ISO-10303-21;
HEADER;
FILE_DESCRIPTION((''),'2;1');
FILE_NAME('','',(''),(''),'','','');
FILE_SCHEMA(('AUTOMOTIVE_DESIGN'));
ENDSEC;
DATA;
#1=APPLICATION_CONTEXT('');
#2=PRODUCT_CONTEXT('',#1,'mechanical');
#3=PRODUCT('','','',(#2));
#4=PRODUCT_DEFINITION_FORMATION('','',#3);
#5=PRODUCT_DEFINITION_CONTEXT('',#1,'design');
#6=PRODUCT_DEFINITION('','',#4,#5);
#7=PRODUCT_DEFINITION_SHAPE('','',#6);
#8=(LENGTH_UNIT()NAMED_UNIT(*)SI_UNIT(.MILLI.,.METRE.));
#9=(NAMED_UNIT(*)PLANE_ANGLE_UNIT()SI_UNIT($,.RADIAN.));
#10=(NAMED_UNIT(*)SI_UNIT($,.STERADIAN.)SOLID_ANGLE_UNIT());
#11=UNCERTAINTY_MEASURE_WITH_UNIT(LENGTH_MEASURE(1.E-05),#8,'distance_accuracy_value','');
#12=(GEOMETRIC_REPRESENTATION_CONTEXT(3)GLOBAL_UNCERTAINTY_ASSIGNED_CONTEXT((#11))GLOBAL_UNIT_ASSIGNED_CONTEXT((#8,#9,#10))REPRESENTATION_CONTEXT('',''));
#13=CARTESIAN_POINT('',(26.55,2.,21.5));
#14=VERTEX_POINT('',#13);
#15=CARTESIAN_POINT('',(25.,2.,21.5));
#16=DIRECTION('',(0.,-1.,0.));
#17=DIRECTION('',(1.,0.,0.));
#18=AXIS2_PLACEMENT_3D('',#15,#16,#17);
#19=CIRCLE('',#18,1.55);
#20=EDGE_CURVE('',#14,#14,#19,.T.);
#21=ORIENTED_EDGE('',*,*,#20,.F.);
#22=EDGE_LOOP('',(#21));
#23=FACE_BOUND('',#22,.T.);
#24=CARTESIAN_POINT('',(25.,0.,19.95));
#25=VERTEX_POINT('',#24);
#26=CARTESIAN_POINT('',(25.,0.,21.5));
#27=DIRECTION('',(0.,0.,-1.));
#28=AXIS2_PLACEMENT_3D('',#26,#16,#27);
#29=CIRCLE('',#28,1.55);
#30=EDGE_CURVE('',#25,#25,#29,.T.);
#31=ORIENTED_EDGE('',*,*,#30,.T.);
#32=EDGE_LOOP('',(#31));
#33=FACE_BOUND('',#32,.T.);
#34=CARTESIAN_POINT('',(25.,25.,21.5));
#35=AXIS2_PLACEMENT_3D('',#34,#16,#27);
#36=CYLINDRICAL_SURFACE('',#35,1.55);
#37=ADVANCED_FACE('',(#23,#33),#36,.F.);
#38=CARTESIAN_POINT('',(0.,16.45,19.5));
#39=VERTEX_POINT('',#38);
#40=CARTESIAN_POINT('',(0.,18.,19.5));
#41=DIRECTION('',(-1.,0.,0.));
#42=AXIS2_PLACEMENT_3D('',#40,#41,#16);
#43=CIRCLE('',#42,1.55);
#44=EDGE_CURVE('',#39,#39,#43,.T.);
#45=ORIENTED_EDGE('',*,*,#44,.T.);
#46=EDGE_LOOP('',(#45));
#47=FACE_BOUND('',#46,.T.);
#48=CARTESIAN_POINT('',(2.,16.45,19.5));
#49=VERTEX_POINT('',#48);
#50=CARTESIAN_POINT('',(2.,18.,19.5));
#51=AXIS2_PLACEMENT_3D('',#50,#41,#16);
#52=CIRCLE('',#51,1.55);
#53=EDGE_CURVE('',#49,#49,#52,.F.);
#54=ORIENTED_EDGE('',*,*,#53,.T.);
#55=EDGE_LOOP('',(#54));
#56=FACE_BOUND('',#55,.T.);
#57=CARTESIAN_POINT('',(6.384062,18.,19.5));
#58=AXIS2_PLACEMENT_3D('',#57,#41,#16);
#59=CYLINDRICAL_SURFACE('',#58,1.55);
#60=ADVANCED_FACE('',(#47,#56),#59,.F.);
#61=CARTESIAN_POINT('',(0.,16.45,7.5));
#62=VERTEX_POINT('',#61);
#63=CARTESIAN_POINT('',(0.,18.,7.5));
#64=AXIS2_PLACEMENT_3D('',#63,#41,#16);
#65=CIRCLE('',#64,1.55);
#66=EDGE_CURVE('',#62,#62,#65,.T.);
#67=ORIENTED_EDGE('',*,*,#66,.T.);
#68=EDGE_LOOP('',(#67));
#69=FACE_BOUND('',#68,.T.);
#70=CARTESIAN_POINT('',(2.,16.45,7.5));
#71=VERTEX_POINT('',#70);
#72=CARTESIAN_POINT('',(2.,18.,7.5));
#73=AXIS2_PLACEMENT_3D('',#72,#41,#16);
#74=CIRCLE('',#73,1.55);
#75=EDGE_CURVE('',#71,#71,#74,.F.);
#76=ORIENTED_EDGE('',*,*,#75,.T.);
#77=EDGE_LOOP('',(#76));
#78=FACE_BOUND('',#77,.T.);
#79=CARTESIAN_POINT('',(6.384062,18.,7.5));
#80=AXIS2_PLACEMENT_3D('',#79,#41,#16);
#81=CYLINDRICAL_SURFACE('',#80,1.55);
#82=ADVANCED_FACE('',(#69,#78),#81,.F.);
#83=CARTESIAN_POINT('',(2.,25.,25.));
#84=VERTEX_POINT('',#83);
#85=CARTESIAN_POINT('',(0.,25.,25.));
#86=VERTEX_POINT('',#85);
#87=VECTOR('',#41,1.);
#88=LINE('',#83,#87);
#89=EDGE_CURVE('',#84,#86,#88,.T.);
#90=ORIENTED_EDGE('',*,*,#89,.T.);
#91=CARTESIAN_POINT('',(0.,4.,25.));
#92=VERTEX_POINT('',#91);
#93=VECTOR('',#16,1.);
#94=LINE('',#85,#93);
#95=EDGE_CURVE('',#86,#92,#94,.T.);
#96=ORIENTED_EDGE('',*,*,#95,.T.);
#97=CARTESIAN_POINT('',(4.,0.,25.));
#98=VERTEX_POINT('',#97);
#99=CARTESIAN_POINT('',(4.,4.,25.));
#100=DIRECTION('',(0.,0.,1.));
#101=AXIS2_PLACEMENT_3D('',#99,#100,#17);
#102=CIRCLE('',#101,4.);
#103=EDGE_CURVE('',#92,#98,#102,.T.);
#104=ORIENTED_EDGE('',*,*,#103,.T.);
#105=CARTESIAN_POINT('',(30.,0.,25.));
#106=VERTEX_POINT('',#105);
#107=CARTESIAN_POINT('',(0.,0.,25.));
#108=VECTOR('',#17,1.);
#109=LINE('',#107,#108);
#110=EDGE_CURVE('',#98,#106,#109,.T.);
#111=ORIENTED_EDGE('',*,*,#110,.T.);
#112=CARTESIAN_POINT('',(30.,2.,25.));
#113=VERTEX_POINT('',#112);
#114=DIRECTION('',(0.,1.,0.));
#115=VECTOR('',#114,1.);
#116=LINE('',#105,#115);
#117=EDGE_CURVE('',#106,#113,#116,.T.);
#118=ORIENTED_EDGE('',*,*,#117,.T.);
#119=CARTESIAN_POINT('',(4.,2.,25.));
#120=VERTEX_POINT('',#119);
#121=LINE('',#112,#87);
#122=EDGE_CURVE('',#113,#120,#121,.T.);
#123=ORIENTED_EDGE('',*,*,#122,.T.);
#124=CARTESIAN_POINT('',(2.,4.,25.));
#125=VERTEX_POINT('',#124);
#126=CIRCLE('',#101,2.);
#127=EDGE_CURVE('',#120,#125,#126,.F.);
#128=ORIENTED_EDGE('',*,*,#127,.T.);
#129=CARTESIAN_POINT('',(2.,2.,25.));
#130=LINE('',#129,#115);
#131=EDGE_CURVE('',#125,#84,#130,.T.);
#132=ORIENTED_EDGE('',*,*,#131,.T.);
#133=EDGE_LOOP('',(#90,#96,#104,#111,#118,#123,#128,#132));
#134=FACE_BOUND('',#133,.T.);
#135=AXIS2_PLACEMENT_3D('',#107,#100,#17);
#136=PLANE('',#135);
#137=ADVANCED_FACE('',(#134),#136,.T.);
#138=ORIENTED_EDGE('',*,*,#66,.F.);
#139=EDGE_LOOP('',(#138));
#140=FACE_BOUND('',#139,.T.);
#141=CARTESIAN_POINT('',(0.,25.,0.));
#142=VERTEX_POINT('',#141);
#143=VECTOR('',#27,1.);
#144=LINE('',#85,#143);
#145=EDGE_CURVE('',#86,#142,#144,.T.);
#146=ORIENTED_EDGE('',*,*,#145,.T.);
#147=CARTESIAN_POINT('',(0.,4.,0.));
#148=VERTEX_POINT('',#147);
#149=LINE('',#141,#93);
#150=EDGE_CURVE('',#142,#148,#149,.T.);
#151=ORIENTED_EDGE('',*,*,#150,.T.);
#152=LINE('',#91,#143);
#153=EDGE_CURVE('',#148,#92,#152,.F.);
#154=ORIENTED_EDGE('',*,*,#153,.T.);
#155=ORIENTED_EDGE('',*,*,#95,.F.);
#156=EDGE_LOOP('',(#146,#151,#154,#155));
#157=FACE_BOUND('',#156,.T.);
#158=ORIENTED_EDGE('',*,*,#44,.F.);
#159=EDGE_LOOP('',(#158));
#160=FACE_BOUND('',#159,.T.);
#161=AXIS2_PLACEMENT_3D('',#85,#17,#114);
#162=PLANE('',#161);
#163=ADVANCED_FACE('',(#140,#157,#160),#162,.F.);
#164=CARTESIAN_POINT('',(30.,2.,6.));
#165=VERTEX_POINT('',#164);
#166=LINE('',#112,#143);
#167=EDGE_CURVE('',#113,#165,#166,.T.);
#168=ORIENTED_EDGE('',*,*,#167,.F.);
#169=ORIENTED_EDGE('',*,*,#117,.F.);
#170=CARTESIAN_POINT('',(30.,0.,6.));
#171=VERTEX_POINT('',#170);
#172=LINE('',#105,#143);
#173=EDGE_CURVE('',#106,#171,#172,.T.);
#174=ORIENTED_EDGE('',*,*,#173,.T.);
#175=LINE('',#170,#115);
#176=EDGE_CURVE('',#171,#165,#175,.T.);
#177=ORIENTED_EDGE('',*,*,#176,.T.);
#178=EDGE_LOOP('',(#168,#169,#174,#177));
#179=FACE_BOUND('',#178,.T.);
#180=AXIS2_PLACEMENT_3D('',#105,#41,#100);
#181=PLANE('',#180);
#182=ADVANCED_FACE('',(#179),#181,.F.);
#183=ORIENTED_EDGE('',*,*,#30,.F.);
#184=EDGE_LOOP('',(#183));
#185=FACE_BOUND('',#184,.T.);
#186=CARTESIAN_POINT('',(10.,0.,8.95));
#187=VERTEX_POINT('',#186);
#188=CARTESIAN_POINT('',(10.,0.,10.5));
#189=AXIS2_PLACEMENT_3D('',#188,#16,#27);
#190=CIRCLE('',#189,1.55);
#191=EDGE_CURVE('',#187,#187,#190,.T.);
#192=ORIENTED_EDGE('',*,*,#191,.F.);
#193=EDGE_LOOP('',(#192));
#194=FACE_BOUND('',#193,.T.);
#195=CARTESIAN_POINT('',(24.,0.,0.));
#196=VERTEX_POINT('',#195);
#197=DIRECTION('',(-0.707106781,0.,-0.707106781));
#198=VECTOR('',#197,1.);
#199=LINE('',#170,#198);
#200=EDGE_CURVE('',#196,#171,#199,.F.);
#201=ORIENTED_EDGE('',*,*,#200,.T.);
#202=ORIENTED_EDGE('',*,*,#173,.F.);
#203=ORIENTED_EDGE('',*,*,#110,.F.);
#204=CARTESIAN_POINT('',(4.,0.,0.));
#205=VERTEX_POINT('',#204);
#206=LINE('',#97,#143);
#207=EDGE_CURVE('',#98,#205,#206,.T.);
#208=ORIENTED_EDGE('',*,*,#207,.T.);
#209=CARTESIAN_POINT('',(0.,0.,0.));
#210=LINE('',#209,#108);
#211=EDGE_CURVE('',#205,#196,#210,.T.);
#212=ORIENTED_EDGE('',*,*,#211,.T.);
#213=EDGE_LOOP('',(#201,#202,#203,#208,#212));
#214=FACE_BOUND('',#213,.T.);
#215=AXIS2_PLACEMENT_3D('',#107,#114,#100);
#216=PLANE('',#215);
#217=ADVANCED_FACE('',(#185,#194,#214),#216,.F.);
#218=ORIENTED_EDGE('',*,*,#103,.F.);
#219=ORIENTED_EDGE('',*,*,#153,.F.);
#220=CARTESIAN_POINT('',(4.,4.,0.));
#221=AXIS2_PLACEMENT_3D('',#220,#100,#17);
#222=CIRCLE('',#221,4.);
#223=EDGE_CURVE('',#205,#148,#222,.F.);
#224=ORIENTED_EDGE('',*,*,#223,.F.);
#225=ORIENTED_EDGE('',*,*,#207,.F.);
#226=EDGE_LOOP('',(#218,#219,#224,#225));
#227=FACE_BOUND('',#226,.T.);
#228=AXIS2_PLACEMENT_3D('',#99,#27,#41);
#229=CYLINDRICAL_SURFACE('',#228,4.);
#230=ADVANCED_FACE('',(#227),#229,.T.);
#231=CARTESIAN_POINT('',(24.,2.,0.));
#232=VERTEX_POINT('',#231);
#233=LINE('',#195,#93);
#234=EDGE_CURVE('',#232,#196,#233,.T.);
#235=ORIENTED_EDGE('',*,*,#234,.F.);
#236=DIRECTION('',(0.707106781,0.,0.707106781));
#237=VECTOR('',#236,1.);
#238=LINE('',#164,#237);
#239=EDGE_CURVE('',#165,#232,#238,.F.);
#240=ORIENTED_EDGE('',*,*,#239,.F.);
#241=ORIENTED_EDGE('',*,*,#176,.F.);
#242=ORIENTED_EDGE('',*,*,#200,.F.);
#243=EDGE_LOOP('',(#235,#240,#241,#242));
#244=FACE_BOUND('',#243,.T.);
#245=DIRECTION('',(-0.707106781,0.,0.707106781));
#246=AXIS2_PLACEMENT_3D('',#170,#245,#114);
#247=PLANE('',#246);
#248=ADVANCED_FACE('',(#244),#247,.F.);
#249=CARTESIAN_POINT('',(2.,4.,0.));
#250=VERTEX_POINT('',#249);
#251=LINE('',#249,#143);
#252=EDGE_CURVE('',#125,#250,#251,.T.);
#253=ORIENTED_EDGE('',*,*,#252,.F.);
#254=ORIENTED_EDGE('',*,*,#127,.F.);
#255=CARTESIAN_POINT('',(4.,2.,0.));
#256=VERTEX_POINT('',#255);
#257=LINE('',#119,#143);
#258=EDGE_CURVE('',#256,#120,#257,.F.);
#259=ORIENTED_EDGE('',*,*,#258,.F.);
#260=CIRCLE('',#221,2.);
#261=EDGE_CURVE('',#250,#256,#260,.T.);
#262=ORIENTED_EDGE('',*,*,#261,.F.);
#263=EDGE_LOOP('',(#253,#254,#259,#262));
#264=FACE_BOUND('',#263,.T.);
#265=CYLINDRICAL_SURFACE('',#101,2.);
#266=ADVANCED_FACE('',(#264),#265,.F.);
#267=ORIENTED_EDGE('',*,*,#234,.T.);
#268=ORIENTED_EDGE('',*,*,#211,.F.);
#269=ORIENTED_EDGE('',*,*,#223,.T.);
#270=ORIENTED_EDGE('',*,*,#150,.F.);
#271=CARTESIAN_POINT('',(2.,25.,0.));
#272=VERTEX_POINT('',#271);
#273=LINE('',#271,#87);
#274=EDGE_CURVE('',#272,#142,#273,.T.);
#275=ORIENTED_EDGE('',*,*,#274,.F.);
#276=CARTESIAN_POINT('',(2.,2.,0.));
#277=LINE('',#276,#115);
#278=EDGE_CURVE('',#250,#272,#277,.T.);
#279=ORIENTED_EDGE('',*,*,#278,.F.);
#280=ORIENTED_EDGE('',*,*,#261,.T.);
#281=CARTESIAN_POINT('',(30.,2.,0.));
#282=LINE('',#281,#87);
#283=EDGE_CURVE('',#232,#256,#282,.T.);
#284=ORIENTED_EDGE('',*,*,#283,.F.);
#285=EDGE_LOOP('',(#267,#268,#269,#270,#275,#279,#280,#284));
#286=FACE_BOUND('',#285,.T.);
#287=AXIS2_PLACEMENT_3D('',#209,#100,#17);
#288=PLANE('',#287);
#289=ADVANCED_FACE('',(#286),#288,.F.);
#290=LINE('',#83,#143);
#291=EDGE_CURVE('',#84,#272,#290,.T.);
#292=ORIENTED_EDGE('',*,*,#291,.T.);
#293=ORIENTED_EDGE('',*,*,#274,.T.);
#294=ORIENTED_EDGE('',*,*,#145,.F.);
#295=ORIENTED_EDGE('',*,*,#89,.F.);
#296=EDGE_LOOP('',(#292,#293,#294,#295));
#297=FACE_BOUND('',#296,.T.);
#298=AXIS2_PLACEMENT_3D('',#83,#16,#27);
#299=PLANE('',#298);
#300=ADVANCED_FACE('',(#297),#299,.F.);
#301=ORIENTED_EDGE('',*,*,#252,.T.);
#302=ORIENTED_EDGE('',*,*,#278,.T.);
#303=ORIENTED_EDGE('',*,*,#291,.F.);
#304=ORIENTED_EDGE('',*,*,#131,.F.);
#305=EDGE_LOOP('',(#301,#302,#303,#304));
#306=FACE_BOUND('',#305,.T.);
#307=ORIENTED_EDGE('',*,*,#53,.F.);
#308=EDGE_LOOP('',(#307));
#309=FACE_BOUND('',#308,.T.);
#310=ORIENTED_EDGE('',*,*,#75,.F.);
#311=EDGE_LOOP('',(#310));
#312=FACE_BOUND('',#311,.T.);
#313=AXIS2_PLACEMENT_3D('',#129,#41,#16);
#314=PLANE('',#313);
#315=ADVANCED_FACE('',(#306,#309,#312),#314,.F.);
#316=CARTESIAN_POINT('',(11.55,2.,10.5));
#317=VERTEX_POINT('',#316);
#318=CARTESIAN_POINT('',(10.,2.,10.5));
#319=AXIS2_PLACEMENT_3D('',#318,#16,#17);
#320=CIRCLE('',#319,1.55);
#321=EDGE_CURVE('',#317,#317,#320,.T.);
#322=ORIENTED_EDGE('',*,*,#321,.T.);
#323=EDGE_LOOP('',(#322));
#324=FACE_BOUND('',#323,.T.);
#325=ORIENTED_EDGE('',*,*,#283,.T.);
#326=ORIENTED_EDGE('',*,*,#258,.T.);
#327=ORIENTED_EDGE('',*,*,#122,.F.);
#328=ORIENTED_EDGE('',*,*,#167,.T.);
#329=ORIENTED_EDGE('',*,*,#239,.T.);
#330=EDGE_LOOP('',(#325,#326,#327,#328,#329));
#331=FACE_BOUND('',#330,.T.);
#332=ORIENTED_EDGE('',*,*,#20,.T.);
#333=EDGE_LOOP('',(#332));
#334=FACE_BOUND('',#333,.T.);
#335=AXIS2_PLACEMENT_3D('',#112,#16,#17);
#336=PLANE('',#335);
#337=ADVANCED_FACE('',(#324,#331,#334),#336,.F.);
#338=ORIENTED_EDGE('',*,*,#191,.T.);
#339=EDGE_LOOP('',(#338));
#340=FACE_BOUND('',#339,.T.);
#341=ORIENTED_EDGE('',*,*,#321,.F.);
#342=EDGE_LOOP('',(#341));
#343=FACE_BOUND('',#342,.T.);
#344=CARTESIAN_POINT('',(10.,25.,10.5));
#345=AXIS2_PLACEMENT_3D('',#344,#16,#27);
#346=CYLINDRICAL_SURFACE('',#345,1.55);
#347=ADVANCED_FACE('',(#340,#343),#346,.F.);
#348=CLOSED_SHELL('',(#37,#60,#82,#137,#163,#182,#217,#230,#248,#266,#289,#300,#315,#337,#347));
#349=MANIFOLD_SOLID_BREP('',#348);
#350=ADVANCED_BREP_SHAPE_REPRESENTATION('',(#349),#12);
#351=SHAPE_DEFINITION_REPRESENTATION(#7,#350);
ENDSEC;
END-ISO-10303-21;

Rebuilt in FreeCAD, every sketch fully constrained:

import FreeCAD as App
import Part
import Sketcher

V = App.Vector
Q = App.Units.Quantity


def edges_at(feature, points):
    """Names of the edges that pass closest to the given points."""
    edges = feature.Shape.Edges
    near = lambda p: min(range(len(edges)), key=lambda i: edges[i].distToShape(Part.Vertex(*p))[0])
    return sorted({f"Edge{near(p) + 1}" for p in points})


def add_polygon(sketch, points):
    """Adds a closed chain of lines whose ends are joined by coincident constraints."""
    first, n = sketch.GeometryCount, len(points)
    for a, b in zip(points, points[1:] + points[:1]):
        sketch.addGeometry(Part.LineSegment(App.Vector(*a, 0), App.Vector(*b, 0)), False)
    for i in range(n):
        sketch.addConstraint(Sketcher.Constraint("Coincident", first + i, 2, first + (i + 1) % n, 1))

doc = App.newDocument("Part")
params = doc.addObject("Spreadsheet::Sheet", "Params")
for row, (alias, value) in enumerate([
    ("sketch1_width", "30 mm"),
    ("sketch1_width2", "28 mm"),
    ("sketch1_height", "23 mm"),
    ("pad1_length", "25 mm"),
    ("sketch2_diameter", "3.1 mm"),
    ("pocket1_length", "2 mm"),
    ("sketch3_diameter", "3.1 mm"),
    ("chamfer_size", "6 mm"),
    ("fillet_radius", "2 mm"),
    ("fillet2_radius", "4 mm"),
], start=1):
    params.set(f"A{row}", alias)
    params.set(f"B{row}", "=" + value)
    params.setAlias(f"B{row}", alias)

body = doc.addObject("PartDesign::Body", "Body")

# Sketch on XY plane
sketch1 = doc.addObject("Sketcher::SketchObject", "Sketch")
body.addObject(sketch1)
sketch1.AttachmentSupport = (doc.XY_Plane, [""])
sketch1.MapMode = "FlatFace"
add_polygon(sketch1, [(0, 0), (30, 0), (30, 2), (2, 2), (2, 25), (0, 25)])  # lines 0-5
sketch1.addConstraint([
    Sketcher.Constraint("Horizontal", 0),
    Sketcher.Constraint("Vertical", 1),
    Sketcher.Constraint("Horizontal", 2),
    Sketcher.Constraint("Vertical", 3),
    Sketcher.Constraint("Horizontal", 4),
    Sketcher.Constraint("Vertical", 5),
    Sketcher.Constraint("Coincident", 5, 2, -1, 1),
    Sketcher.Constraint("Equal", 4, 1),
    Sketcher.Constraint("DistanceX", 0, 1, 0, 2, Q("30 mm")),
    Sketcher.Constraint("DistanceX", 2, 2, 2, 1, Q("28 mm")),
    Sketcher.Constraint("DistanceY", 3, 1, 3, 2, Q("23 mm")),
])
sketch1.setExpression("Constraints[14]", "Params.sketch1_width")
sketch1.setExpression("Constraints[15]", "Params.sketch1_width2")
sketch1.setExpression("Constraints[16]", "Params.sketch1_height")
pad1 = doc.addObject("PartDesign::Pad", "Pad")
body.addObject(pad1)
pad1.Profile = sketch1
pad1.setExpression("Length", "Params.pad1_length")

# Sketch on YZ plane
sketch2 = doc.addObject("Sketcher::SketchObject", "Sketch001")
body.addObject(sketch2)
sketch2.AttachmentSupport = (doc.YZ_Plane, [""])
sketch2.MapMode = "FlatFace"
sketch2.addGeometry([
    Part.Circle(V(18, 19.5, 0), V(0, 0, 1), 1.6),
    Part.Circle(V(18, 7.5, 0), V(0, 0, 1), 1.6),
], False)
sketch2.addConstraint([
    Sketcher.Constraint("Equal", 0, 1),
    Sketcher.Constraint("Vertical", 0, 3, 1, 3),
    Sketcher.Constraint("Diameter", 0, Q("3.1 mm")),
    Sketcher.Constraint("DistanceX", -1, 1, 0, 3, Q("18 mm")),
    Sketcher.Constraint("DistanceY", 1, 3, 0, 3, Q("12 mm")),
    Sketcher.Constraint("DistanceY", -1, 1, 0, 3, Q("19.5 mm")),
])
sketch2.setExpression("Constraints[2]", "Params.sketch2_diameter")
pocket1 = doc.addObject("PartDesign::Pocket", "Pocket")
body.addObject(pocket1)
pocket1.Profile = sketch2
pocket1.setExpression("Length", "Params.pocket1_length")
pocket1.Reversed = True

# Sketch on XZ plane
sketch3 = doc.addObject("Sketcher::SketchObject", "Sketch002")
body.addObject(sketch3)
sketch3.AttachmentSupport = (doc.XZ_Plane, [""])
sketch3.MapMode = "FlatFace"
sketch3.addGeometry([
    Part.Circle(V(10, 10.5, 0), V(0, 0, 1), 1.6),
    Part.Circle(V(25, 21.5, 0), V(0, 0, 1), 1.6),
], False)
sketch3.addConstraint([
    Sketcher.Constraint("Equal", 0, 1),
    Sketcher.Constraint("Diameter", 0, Q("3.1 mm")),
    Sketcher.Constraint("DistanceX", -1, 1, 0, 3, Q("10 mm")),
    Sketcher.Constraint("DistanceX", -1, 1, 1, 3, Q("25 mm")),
    Sketcher.Constraint("DistanceY", 0, 3, 1, 3, Q("11 mm")),
    Sketcher.Constraint("DistanceY", -1, 1, 0, 3, Q("10.5 mm")),
])
sketch3.setExpression("Constraints[1]", "Params.sketch3_diameter")
pocket2 = doc.addObject("PartDesign::Pocket", "Pocket001")
body.addObject(pocket2)
pocket2.Profile = sketch3
pocket2.Type = "ThroughAll"
doc.recompute()

chamfer = doc.addObject("PartDesign::Chamfer", "Chamfer")
body.addObject(chamfer)
chamfer.Base = (pocket2, edges_at(pocket2, [(30, 1, 0)]))
chamfer.setExpression("Size", "Params.chamfer_size")
doc.recompute()

fillet = doc.addObject("PartDesign::Fillet", "Fillet")
body.addObject(fillet)
fillet.Base = (chamfer, edges_at(chamfer, [(2, 2, 12.5)]))
fillet.setExpression("Radius", "Params.fillet_radius")
doc.recompute()

fillet2 = doc.addObject("PartDesign::Fillet", "Fillet001")
body.addObject(fillet2)
fillet2.Base = (fillet, edges_at(fillet, [(0, 0, 12.5)]))
fillet2.setExpression("Radius", "Params.fillet2_radius")

doc.recompute()
